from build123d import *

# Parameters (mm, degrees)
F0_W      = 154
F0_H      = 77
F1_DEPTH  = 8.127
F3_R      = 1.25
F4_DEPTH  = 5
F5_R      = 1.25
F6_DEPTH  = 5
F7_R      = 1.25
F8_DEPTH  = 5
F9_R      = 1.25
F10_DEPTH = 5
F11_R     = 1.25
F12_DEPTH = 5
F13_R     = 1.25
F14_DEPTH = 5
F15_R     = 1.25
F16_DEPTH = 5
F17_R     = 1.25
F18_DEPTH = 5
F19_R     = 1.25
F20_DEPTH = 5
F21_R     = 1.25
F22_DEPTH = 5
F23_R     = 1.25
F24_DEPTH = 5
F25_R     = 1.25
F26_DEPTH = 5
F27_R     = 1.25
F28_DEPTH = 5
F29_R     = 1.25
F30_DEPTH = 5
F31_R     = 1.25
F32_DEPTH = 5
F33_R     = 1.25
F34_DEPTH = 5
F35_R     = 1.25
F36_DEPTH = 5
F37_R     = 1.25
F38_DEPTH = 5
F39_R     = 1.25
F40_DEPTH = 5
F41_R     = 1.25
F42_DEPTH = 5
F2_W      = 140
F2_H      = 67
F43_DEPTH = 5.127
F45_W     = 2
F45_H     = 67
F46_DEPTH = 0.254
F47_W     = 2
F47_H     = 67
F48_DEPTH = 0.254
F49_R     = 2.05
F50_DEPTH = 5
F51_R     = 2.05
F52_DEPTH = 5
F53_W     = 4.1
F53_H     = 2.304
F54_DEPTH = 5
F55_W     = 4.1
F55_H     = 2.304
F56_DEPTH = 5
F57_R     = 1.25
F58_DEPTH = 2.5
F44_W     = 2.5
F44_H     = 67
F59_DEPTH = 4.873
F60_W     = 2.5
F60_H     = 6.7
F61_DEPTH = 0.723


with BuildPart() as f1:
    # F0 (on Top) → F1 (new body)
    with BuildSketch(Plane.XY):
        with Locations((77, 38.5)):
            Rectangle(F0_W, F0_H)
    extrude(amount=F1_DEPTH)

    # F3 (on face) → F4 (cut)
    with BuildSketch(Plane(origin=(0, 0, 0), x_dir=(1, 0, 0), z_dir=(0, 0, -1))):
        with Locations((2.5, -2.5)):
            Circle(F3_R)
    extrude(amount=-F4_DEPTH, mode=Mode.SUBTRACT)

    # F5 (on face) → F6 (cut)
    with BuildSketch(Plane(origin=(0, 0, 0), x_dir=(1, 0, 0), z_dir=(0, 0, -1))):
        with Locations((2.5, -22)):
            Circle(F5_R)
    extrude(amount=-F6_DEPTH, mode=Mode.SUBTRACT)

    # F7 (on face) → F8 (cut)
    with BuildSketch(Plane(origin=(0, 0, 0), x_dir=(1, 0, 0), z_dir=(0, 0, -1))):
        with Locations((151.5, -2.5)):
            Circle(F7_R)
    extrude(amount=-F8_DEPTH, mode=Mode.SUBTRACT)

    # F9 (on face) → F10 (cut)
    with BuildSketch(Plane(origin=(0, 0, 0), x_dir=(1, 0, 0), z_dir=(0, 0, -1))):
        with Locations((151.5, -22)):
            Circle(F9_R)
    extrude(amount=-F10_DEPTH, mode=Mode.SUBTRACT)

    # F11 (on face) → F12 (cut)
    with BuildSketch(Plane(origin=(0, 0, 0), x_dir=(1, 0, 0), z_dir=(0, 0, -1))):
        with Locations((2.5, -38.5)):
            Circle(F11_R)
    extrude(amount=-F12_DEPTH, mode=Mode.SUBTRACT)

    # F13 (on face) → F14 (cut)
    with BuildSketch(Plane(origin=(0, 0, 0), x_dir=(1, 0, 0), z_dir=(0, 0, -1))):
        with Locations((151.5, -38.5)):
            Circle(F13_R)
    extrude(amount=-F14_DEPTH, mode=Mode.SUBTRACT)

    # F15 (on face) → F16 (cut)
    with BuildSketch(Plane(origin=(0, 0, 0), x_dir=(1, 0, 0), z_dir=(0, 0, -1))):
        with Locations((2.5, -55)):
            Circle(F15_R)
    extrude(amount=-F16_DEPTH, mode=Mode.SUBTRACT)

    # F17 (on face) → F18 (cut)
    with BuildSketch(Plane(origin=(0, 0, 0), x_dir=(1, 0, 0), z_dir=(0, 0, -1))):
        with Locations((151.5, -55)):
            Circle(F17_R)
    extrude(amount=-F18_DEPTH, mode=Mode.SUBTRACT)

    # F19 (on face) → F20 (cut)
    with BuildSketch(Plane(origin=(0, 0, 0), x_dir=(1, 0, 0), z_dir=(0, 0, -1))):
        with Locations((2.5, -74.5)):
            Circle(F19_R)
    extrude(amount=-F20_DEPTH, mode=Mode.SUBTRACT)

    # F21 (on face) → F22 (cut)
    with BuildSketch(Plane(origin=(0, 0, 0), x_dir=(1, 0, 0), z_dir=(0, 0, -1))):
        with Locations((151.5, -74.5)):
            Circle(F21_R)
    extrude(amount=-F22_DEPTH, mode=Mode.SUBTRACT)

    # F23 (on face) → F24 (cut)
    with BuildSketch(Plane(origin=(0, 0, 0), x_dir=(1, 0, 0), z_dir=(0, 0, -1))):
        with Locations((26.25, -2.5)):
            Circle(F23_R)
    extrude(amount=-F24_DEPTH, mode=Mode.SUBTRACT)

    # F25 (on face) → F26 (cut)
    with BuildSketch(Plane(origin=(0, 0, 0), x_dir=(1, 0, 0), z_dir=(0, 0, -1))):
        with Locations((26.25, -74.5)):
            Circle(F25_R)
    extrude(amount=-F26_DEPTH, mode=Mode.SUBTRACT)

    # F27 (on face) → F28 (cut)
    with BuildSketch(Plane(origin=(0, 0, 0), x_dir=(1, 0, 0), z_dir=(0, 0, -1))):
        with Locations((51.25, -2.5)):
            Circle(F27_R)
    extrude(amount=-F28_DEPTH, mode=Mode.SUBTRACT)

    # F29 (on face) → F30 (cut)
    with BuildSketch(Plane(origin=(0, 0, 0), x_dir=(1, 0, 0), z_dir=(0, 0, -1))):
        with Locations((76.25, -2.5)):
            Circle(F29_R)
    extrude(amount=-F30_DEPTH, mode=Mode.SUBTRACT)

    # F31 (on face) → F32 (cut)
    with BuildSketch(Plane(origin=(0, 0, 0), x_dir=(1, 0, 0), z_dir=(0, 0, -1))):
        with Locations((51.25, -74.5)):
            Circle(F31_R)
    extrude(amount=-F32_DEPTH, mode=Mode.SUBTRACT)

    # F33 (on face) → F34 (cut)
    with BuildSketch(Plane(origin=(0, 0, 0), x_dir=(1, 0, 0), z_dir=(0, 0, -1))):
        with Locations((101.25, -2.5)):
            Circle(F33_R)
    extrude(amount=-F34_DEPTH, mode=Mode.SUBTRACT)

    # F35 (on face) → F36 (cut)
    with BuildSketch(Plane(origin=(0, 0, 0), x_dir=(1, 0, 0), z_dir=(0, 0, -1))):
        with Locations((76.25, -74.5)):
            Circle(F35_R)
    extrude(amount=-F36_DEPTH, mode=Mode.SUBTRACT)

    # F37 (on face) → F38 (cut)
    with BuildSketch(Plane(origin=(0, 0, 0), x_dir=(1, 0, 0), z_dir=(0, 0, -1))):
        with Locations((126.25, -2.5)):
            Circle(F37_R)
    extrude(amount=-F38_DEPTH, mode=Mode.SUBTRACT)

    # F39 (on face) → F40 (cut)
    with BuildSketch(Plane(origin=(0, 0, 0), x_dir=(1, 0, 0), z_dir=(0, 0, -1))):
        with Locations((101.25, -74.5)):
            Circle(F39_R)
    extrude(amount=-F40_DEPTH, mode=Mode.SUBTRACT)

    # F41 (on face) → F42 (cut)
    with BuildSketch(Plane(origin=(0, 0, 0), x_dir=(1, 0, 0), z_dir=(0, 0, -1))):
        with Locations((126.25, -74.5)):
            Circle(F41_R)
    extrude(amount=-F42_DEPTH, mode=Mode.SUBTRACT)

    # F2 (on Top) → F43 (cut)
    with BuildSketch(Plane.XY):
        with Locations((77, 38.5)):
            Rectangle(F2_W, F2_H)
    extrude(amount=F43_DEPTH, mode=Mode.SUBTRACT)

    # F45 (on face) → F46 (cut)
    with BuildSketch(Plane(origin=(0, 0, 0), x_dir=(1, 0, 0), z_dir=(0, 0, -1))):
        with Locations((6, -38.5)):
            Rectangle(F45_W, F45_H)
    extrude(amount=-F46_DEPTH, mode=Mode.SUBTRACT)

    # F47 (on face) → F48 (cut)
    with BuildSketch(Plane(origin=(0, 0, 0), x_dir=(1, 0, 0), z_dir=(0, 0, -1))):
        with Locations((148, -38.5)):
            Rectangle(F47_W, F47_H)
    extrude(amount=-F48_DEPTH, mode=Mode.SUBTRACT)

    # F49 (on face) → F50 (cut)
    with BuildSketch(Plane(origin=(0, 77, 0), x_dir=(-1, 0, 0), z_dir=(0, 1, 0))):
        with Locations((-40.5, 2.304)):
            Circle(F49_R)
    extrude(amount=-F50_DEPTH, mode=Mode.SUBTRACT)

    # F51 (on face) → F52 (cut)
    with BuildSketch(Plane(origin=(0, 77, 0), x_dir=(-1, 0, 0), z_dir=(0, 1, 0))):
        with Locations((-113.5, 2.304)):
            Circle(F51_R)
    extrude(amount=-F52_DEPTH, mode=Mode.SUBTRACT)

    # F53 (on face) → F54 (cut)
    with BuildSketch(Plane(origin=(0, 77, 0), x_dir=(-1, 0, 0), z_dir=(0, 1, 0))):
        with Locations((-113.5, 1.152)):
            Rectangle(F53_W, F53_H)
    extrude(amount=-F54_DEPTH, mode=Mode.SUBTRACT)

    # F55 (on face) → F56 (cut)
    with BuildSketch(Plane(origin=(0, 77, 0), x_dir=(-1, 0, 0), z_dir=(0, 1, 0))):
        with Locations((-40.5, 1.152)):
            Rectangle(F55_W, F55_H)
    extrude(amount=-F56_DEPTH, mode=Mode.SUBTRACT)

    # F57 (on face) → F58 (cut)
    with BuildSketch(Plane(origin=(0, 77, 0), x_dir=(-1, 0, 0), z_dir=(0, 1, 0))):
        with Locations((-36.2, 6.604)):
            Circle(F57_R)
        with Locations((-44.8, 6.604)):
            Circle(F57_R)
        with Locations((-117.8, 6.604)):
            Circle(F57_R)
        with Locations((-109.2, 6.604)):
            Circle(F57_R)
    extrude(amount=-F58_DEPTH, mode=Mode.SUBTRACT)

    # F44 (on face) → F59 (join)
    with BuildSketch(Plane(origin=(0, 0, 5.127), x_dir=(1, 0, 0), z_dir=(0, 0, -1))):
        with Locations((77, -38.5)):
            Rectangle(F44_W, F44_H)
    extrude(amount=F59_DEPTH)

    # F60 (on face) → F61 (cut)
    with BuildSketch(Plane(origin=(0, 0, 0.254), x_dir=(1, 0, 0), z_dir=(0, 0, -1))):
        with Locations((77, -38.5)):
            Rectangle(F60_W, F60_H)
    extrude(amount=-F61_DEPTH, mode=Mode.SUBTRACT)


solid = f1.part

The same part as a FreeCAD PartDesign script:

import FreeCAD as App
import Part
import Sketcher

V = App.Vector

doc = App.newDocument("Part")
body = doc.addObject("PartDesign::Body", "Body")

sketch1 = body.newObject("Sketcher::SketchObject", "Sketch")
sketch1.AttachmentSupport = (doc.getObject("XY_Plane"), [""])
sketch1.MapMode = "FlatFace"
sketch1.addGeometry([
    Part.LineSegment(V(0, 77, 0), V(0, 0, 0)),
    Part.LineSegment(V(0, 0, 0), V(154, 0, 0)),
    Part.LineSegment(V(154, 0, 0), V(154, 77, 0)),
    Part.LineSegment(V(154, 77, 0), V(0, 77, 0)),
], False)
sketch1.addConstraint([
    Sketcher.Constraint("Coincident", 0, 2, 1, 1),
    Sketcher.Constraint("Coincident", 1, 2, 2, 1),
    Sketcher.Constraint("Coincident", 2, 2, 3, 1),
    Sketcher.Constraint("Coincident", 3, 2, 0, 1),
    Sketcher.Constraint("Vertical", 0),
    Sketcher.Constraint("Horizontal", 1),
    Sketcher.Constraint("Vertical", 2),
    Sketcher.Constraint("Horizontal", 3),
    Sketcher.Constraint("Coincident", 0, 2, -1, 1),
    Sketcher.Constraint("DistanceX", 1, 1, 1, 2, 154.0),
    Sketcher.Constraint("DistanceY", 0, 2, 0, 1, 77.0),
])
pad1 = body.newObject("PartDesign::Pad", "Pad")
pad1.Profile = sketch1
pad1.Length = 8.127

sketch2 = body.newObject("Sketcher::SketchObject", "Sketch001")
sketch2.AttachmentSupport = (doc.getObject("XY_Plane"), [""])
sketch2.MapMode = "FlatFace"
sketch2.addGeometry(Part.Circle(V(2.5, 2.5, 0), V(0, 0, 1), 1.2), False)
sketch2.addConstraint([
    Sketcher.Constraint("Diameter", 0, 2.5),
    Sketcher.Constraint("DistanceX", -1, 1, 0, 3, 2.5),
    Sketcher.Constraint("DistanceY", -1, 1, 0, 3, 2.5),
])
pocket1 = body.newObject("PartDesign::Pocket", "Pocket")
pocket1.Profile = sketch2
pocket1.Length = 5
pocket1.Reversed = True

sketch3 = body.newObject("Sketcher::SketchObject", "Sketch002")
sketch3.AttachmentSupport = (doc.getObject("XY_Plane"), [""])
sketch3.MapMode = "FlatFace"
sketch3.addGeometry(Part.Circle(V(2.5, 22, 0), V(0, 0, 1), 1.2), False)
sketch3.addConstraint([
    Sketcher.Constraint("Diameter", 0, 2.5),
    Sketcher.Constraint("DistanceY", -1, 1, 0, 3, 22.0),
    Sketcher.Constraint("DistanceX", -1, 1, 0, 3, 2.5),
])
pocket2 = body.newObject("PartDesign::Pocket", "Pocket001")
pocket2.Profile = sketch3
pocket2.Length = 5
pocket2.Reversed = True

sketch4 = body.newObject("Sketcher::SketchObject", "Sketch003")
sketch4.AttachmentSupport = (doc.getObject("XY_Plane"), [""])
sketch4.MapMode = "FlatFace"
sketch4.addGeometry(Part.Circle(V(151.5, 2.5, 0), V(0, 0, 1), 1.2), False)
sketch4.addConstraint([
    Sketcher.Constraint("Diameter", 0, 2.5),
    Sketcher.Constraint("DistanceX", -1, 1, 0, 3, 151.5),
    Sketcher.Constraint("DistanceY", -1, 1, 0, 3, 2.5),
])
pocket3 = body.newObject("PartDesign::Pocket", "Pocket002")
pocket3.Profile = sketch4
pocket3.Length = 5
pocket3.Reversed = True

sketch5 = body.newObject("Sketcher::SketchObject", "Sketch004")
sketch5.AttachmentSupport = (doc.getObject("XY_Plane"), [""])
sketch5.MapMode = "FlatFace"
sketch5.addGeometry(Part.Circle(V(151.5, 22, 0), V(0, 0, 1), 1.2), False)
sketch5.addConstraint([
    Sketcher.Constraint("Diameter", 0, 2.5),
    Sketcher.Constraint("DistanceY", -1, 1, 0, 3, 22.0),
    Sketcher.Constraint("DistanceX", -1, 1, 0, 3, 151.5),
])
pocket4 = body.newObject("PartDesign::Pocket", "Pocket003")
pocket4.Profile = sketch5
pocket4.Length = 5
pocket4.Reversed = True

sketch6 = body.newObject("Sketcher::SketchObject", "Sketch005")
sketch6.AttachmentSupport = (doc.getObject("XY_Plane"), [""])
sketch6.MapMode = "FlatFace"
sketch6.addGeometry(Part.Circle(V(2.5, 38.5, 0), V(0, 0, 1), 1.2), False)
sketch6.addConstraint([
    Sketcher.Constraint("Diameter", 0, 2.5),
    Sketcher.Constraint("DistanceX", -1, 1, 0, 3, 2.5),
    Sketcher.Constraint("DistanceY", -1, 1, 0, 3, 38.5),
])
pocket5 = body.newObject("PartDesign::Pocket", "Pocket004")
pocket5.Profile = sketch6
pocket5.Length = 5
pocket5.Reversed = True

sketch7 = body.newObject("Sketcher::SketchObject", "Sketch006")
sketch7.AttachmentSupport = (doc.getObject("XY_Plane"), [""])
sketch7.MapMode = "FlatFace"
sketch7.addGeometry(Part.Circle(V(151.5, 38.5, 0), V(0, 0, 1), 1.2), False)
sketch7.addConstraint([
    Sketcher.Constraint("Diameter", 0, 2.5),
    Sketcher.Constraint("DistanceX", -1, 1, 0, 3, 151.5),
    Sketcher.Constraint("DistanceY", -1, 1, 0, 3, 38.5),
])
pocket6 = body.newObject("PartDesign::Pocket", "Pocket005")
pocket6.Profile = sketch7
pocket6.Length = 5
pocket6.Reversed = True

sketch8 = body.newObject("Sketcher::SketchObject", "Sketch007")
sketch8.AttachmentSupport = (doc.getObject("XY_Plane"), [""])
sketch8.MapMode = "FlatFace"
sketch8.addGeometry(Part.Circle(V(2.5, 55, 0), V(0, 0, 1), 1.2), False)
sketch8.addConstraint([
    Sketcher.Constraint("Diameter", 0, 2.5),
    Sketcher.Constraint("DistanceY", -1, 1, 0, 3, 55.0),
    Sketcher.Constraint("DistanceX", -1, 1, 0, 3, 2.5),
])
pocket7 = body.newObject("PartDesign::Pocket", "Pocket006")
pocket7.Profile = sketch8
pocket7.Length = 5
pocket7.Reversed = True

sketch9 = body.newObject("Sketcher::SketchObject", "Sketch008")
sketch9.AttachmentSupport = (doc.getObject("XY_Plane"), [""])
sketch9.MapMode = "FlatFace"
sketch9.addGeometry(Part.Circle(V(151.5, 55, 0), V(0, 0, 1), 1.2), False)
sketch9.addConstraint([
    Sketcher.Constraint("Diameter", 0, 2.5),
    Sketcher.Constraint("DistanceY", -1, 1, 0, 3, 55.0),
    Sketcher.Constraint("DistanceX", -1, 1, 0, 3, 151.5),
])
pocket8 = body.newObject("PartDesign::Pocket", "Pocket007")
pocket8.Profile = sketch9
pocket8.Length = 5
pocket8.Reversed = True

sketch10 = body.newObject("Sketcher::SketchObject", "Sketch009")
sketch10.AttachmentSupport = (doc.getObject("XY_Plane"), [""])
sketch10.MapMode = "FlatFace"
sketch10.addGeometry(Part.Circle(V(2.5, 74.5, 0), V(0, 0, 1), 1.2), False)
sketch10.addConstraint([
    Sketcher.Constraint("Diameter", 0, 2.5),
    Sketcher.Constraint("DistanceX", -1, 1, 0, 3, 2.5),
    Sketcher.Constraint("DistanceY", -1, 1, 0, 3, 74.5),
])
pocket9 = body.newObject("PartDesign::Pocket", "Pocket008")
pocket9.Profile = sketch10
pocket9.Length = 5
pocket9.Reversed = True

sketch11 = body.newObject("Sketcher::SketchObject", "Sketch010")
sketch11.AttachmentSupport = (doc.getObject("XY_Plane"), [""])
sketch11.MapMode = "FlatFace"
sketch11.addGeometry(Part.Circle(V(151.5, 74.5, 0), V(0, 0, 1), 1.2), False)
sketch11.addConstraint([
    Sketcher.Constraint("Diameter", 0, 2.5),
    Sketcher.Constraint("DistanceX", -1, 1, 0, 3, 151.5),
    Sketcher.Constraint("DistanceY", -1, 1, 0, 3, 74.5),
])
pocket10 = body.newObject("PartDesign::Pocket", "Pocket009")
pocket10.Profile = sketch11
pocket10.Length = 5
pocket10.Reversed = True

sketch12 = body.newObject("Sketcher::SketchObject", "Sketch011")
sketch12.AttachmentSupport = (doc.getObject("XY_Plane"), [""])
sketch12.MapMode = "FlatFace"
sketch12.addGeometry(Part.Circle(V(26.2, 2.5, 0), V(0, 0, 1), 1.2), False)
sketch12.addConstraint([
    Sketcher.Constraint("Diameter", 0, 2.5),
    Sketcher.Constraint("DistanceY", -1, 1, 0, 3, 2.5),
    Sketcher.Constraint("DistanceX", -1, 1, 0, 3, 26.25),
])
pocket11 = body.newObject("PartDesign::Pocket", "Pocket010")
pocket11.Profile = sketch12
pocket11.Length = 5
pocket11.Reversed = True

sketch13 = body.newObject("Sketcher::SketchObject", "Sketch012")
sketch13.AttachmentSupport = (doc.getObject("XY_Plane"), [""])
sketch13.MapMode = "FlatFace"
sketch13.addGeometry(Part.Circle(V(26.2, 74.5, 0), V(0, 0, 1), 1.2), False)
sketch13.addConstraint([
    Sketcher.Constraint("Diameter", 0, 2.5),
    Sketcher.Constraint("DistanceY", -1, 1, 0, 3, 74.5),
    Sketcher.Constraint("DistanceX", -1, 1, 0, 3, 26.25),
])
pocket12 = body.newObject("PartDesign::Pocket", "Pocket011")
pocket12.Profile = sketch13
pocket12.Length = 5
pocket12.Reversed = True

sketch14 = body.newObject("Sketcher::SketchObject", "Sketch013")
sketch14.AttachmentSupport = (doc.getObject("XY_Plane"), [""])
sketch14.MapMode = "FlatFace"
sketch14.addGeometry(Part.Circle(V(51.2, 2.5, 0), V(0, 0, 1), 1.2), False)
sketch14.addConstraint([
    Sketcher.Constraint("Diameter", 0, 2.5),
    Sketcher.Constraint("DistanceY", -1, 1, 0, 3, 2.5),
    Sketcher.Constraint("DistanceX", -1, 1, 0, 3, 51.25),
])
pocket13 = body.newObject("PartDesign::Pocket", "Pocket012")
pocket13.Profile = sketch14
pocket13.Length = 5
pocket13.Reversed = True

sketch15 = body.newObject("Sketcher::SketchObject", "Sketch014")
sketch15.AttachmentSupport = (doc.getObject("XY_Plane"), [""])
sketch15.MapMode = "FlatFace"
sketch15.addGeometry(Part.Circle(V(76.2, 2.5, 0), V(0, 0, 1), 1.2), False)
sketch15.addConstraint([
    Sketcher.Constraint("Diameter", 0, 2.5),
    Sketcher.Constraint("DistanceY", -1, 1, 0, 3, 2.5),
    Sketcher.Constraint("DistanceX", -1, 1, 0, 3, 76.25),
])
pocket14 = body.newObject("PartDesign::Pocket", "Pocket013")
pocket14.Profile = sketch15
pocket14.Length = 5
pocket14.Reversed = True

sketch16 = body.newObject("Sketcher::SketchObject", "Sketch015")
sketch16.AttachmentSupport = (doc.getObject("XY_Plane"), [""])
sketch16.MapMode = "FlatFace"
sketch16.addGeometry(Part.Circle(V(51.2, 74.5, 0), V(0, 0, 1), 1.2), False)
sketch16.addConstraint([
    Sketcher.Constraint("Diameter", 0, 2.5),
    Sketcher.Constraint("DistanceY", -1, 1, 0, 3, 74.5),
    Sketcher.Constraint("DistanceX", -1, 1, 0, 3, 51.25),
])
pocket15 = body.newObject("PartDesign::Pocket", "Pocket014")
pocket15.Profile = sketch16
pocket15.Length = 5
pocket15.Reversed = True

sketch17 = body.newObject("Sketcher::SketchObject", "Sketch016")
sketch17.AttachmentSupport = (doc.getObject("XY_Plane"), [""])
sketch17.MapMode = "FlatFace"
sketch17.addGeometry(Part.Circle(V(101.2, 2.5, 0), V(0, 0, 1), 1.2), False)
sketch17.addConstraint([
    Sketcher.Constraint("Diameter", 0, 2.5),
    Sketcher.Constraint("DistanceY", -1, 1, 0, 3, 2.5),
    Sketcher.Constraint("DistanceX", -1, 1, 0, 3, 101.25),
])
pocket16 = body.newObject("PartDesign::Pocket", "Pocket015")
pocket16.Profile = sketch17
pocket16.Length = 5
pocket16.Reversed = True

sketch18 = body.newObject("Sketcher::SketchObject", "Sketch017")
sketch18.AttachmentSupport = (doc.getObject("XY_Plane"), [""])
sketch18.MapMode = "FlatFace"
sketch18.addGeometry(Part.Circle(V(76.2, 74.5, 0), V(0, 0, 1), 1.2), False)
sketch18.addConstraint([
    Sketcher.Constraint("Diameter", 0, 2.5),
    Sketcher.Constraint("DistanceY", -1, 1, 0, 3, 74.5),
    Sketcher.Constraint("DistanceX", -1, 1, 0, 3, 76.25),
])
pocket17 = body.newObject("PartDesign::Pocket", "Pocket016")
pocket17.Profile = sketch18
pocket17.Length = 5
pocket17.Reversed = True

sketch19 = body.newObject("Sketcher::SketchObject", "Sketch018")
sketch19.AttachmentSupport = (doc.getObject("XY_Plane"), [""])
sketch19.MapMode = "FlatFace"
sketch19.addGeometry(Part.Circle(V(126.2, 2.5, 0), V(0, 0, 1), 1.2), False)
sketch19.addConstraint([
    Sketcher.Constraint("Diameter", 0, 2.5),
    Sketcher.Constraint("DistanceY", -1, 1, 0, 3, 2.5),
    Sketcher.Constraint("DistanceX", -1, 1, 0, 3, 126.25),
])
pocket18 = body.newObject("PartDesign::Pocket", "Pocket017")
pocket18.Profile = sketch19
pocket18.Length = 5
pocket18.Reversed = True

sketch20 = body.newObject("Sketcher::SketchObject", "Sketch019")
sketch20.AttachmentSupport = (doc.getObject("XY_Plane"), [""])
sketch20.MapMode = "FlatFace"
sketch20.addGeometry(Part.Circle(V(101.2, 74.5, 0), V(0, 0, 1), 1.2), False)
sketch20.addConstraint([
    Sketcher.Constraint("Diameter", 0, 2.5),
    Sketcher.Constraint("DistanceY", -1, 1, 0, 3, 74.5),
    Sketcher.Constraint("DistanceX", -1, 1, 0, 3, 101.25),
])
pocket19 = body.newObject("PartDesign::Pocket", "Pocket018")
pocket19.Profile = sketch20
pocket19.Length = 5
pocket19.Reversed = True

sketch21 = body.newObject("Sketcher::SketchObject", "Sketch020")
sketch21.AttachmentSupport = (doc.getObject("XY_Plane"), [""])
sketch21.MapMode = "FlatFace"
sketch21.addGeometry(Part.Circle(V(126.2, 74.5, 0), V(0, 0, 1), 1.2), False)
sketch21.addConstraint([
    Sketcher.Constraint("Diameter", 0, 2.5),
    Sketcher.Constraint("DistanceY", -1, 1, 0, 3, 74.5),
    Sketcher.Constraint("DistanceX", -1, 1, 0, 3, 126.25),
])
pocket20 = body.newObject("PartDesign::Pocket", "Pocket019")
pocket20.Profile = sketch21
pocket20.Length = 5
pocket20.Reversed = True

sketch22 = body.newObject("Sketcher::SketchObject", "Sketch021")
sketch22.AttachmentSupport = (doc.getObject("XY_Plane"), [""])
sketch22.MapMode = "FlatFace"
sketch22.addGeometry([
    Part.LineSegment(V(7, 72, 0), V(7, 5, 0)),
    Part.LineSegment(V(7, 5, 0), V(147, 5, 0)),
    Part.LineSegment(V(147, 5, 0), V(147, 72, 0)),
    Part.LineSegment(V(147, 72, 0), V(7, 72, 0)),
], False)
sketch22.addConstraint([
    Sketcher.Constraint("Coincident", 0, 2, 1, 1),
    Sketcher.Constraint("Coincident", 1, 2, 2, 1),
    Sketcher.Constraint("Coincident", 2, 2, 3, 1),
    Sketcher.Constraint("Coincident", 3, 2, 0, 1),
    Sketcher.Constraint("Vertical", 0),
    Sketcher.Constraint("Horizontal", 1),
    Sketcher.Constraint("Vertical", 2),
    Sketcher.Constraint("Horizontal", 3),
    Sketcher.Constraint("DistanceX", 1, 1, 1, 2, 140.0),
    Sketcher.Constraint("DistanceY", 0, 2, 0, 1, 67.0),
    Sketcher.Constraint("DistanceX", -1, 1, 0, 2, 7.0),
    Sketcher.Constraint("DistanceY", -1, 1, 0, 2, 5.0),
])
pocket21 = body.newObject("PartDesign::Pocket", "Pocket020")
pocket21.Profile = sketch22
pocket21.Length = 5.127
pocket21.Reversed = True

sketch23 = body.newObject("Sketcher::SketchObject", "Sketch022")
sketch23.AttachmentSupport = (doc.getObject("XY_Plane"), [""])
sketch23.MapMode = "FlatFace"
sketch23.addGeometry([
    Part.LineSegment(V(5, 5, 0), V(5, 72, 0)),
    Part.LineSegment(V(5, 72, 0), V(7, 72, 0)),
    Part.LineSegment(V(7, 72, 0), V(7, 5, 0)),
    Part.LineSegment(V(7, 5, 0), V(5, 5, 0)),
], False)
sketch23.addConstraint([
    Sketcher.Constraint("Coincident", 0, 2, 1, 1),
    Sketcher.Constraint("Coincident", 1, 2, 2, 1),
    Sketcher.Constraint("Coincident", 2, 2, 3, 1),
    Sketcher.Constraint("Coincident", 3, 2, 0, 1),
    Sketcher.Constraint("Vertical", 0),
    Sketcher.Constraint("Horizontal", 1),
    Sketcher.Constraint("Vertical", 2),
    Sketcher.Constraint("Horizontal", 3),
    Sketcher.Constraint("DistanceX", 1, 1, 1, 2, 2.0),
    Sketcher.Constraint("DistanceY", 0, 1, 0, 2, 67.0),
    Sketcher.Constraint("DistanceX", -1, 1, 0, 2, 5.0),
    Sketcher.Constraint("DistanceY", -1, 1, 0, 2, 72.0),
])
pocket22 = body.newObject("PartDesign::Pocket", "Pocket021")
pocket22.Profile = sketch23
pocket22.Length = 0.254
pocket22.Reversed = True

sketch24 = body.newObject("Sketcher::SketchObject", "Sketch023")
sketch24.AttachmentSupport = (doc.getObject("XY_Plane"), [""])
sketch24.MapMode = "FlatFace"
sketch24.addGeometry([
    Part.LineSegment(V(147, 5, 0), V(147, 72, 0)),
    Part.LineSegment(V(147, 72, 0), V(149, 72, 0)),
    Part.LineSegment(V(149, 72, 0), V(149, 5, 0)),
    Part.LineSegment(V(149, 5, 0), V(147, 5, 0)),
], False)
sketch24.addConstraint([
    Sketcher.Constraint("Coincident", 0, 2, 1, 1),
    Sketcher.Constraint("Coincident", 1, 2, 2, 1),
    Sketcher.Constraint("Coincident", 2, 2, 3, 1),
    Sketcher.Constraint("Coincident", 3, 2, 0, 1),
    Sketcher.Constraint("Vertical", 0),
    Sketcher.Constraint("Horizontal", 1),
    Sketcher.Constraint("Vertical", 2),
    Sketcher.Constraint("Horizontal", 3),
    Sketcher.Constraint("DistanceX", 1, 1, 1, 2, 2.0),
    Sketcher.Constraint("DistanceY", 0, 1, 0, 2, 67.0),
    Sketcher.Constraint("DistanceX", -1, 1, 0, 2, 147.0),
    Sketcher.Constraint("DistanceY", -1, 1, 0, 2, 72.0),
])
pocket23 = body.newObject("PartDesign::Pocket", "Pocket022")
pocket23.Profile = sketch24
pocket23.Length = 0.254
pocket23.Reversed = True

sketch25 = body.newObject("Sketcher::SketchObject", "Sketch024")
sketch25.AttachmentSupport = (doc.getObject("XZ_Plane"), [""])
sketch25.MapMode = "FlatFace"
sketch25.AttachmentOffset = App.Placement(V(0, 0, -77), App.Rotation())
sketch25.addGeometry(Part.Circle(V(40.5, 2.3, 0), V(0, 0, 1), 2), False)
sketch25.addConstraint([
    Sketcher.Constraint("Diameter", 0, 4.1),
    Sketcher.Constraint("DistanceX", -1, 1, 0, 3, 40.5),
    Sketcher.Constraint("DistanceY", -1, 1, 0, 3, 2.304),
])
pocket24 = body.newObject("PartDesign::Pocket", "Pocket023")
pocket24.Profile = sketch25
pocket24.Length = 5
pocket24.Reversed = True

sketch26 = body.newObject("Sketcher::SketchObject", "Sketch025")
sketch26.AttachmentSupport = (doc.getObject("XZ_Plane"), [""])
sketch26.MapMode = "FlatFace"
sketch26.AttachmentOffset = App.Placement(V(0, 0, -77), App.Rotation())
sketch26.addGeometry(Part.Circle(V(113.5, 2.3, 0), V(0, 0, 1), 2), False)
sketch26.addConstraint([
    Sketcher.Constraint("Diameter", 0, 4.1),
    Sketcher.Constraint("DistanceX", -1, 1, 0, 3, 113.5),
    Sketcher.Constraint("DistanceY", -1, 1, 0, 3, 2.304),
])
pocket25 = body.newObject("PartDesign::Pocket", "Pocket024")
pocket25.Profile = sketch26
pocket25.Length = 5
pocket25.Reversed = True

sketch27 = body.newObject("Sketcher::SketchObject", "Sketch026")
sketch27.AttachmentSupport = (doc.getObject("XZ_Plane"), [""])
sketch27.MapMode = "FlatFace"
sketch27.AttachmentOffset = App.Placement(V(0, 0, -77), App.Rotation())
sketch27.addGeometry([
    Part.LineSegment(V(115.5, 2.3, 0), V(115.5, 0, 0)),
    Part.LineSegment(V(115.5, 0, 0), V(111.5, 0, 0)),
    Part.LineSegment(V(111.5, 0, 0), V(111.5, 2.3, 0)),
    Part.LineSegment(V(111.5, 2.3, 0), V(115.5, 2.3, 0)),
], False)
sketch27.addConstraint([
    Sketcher.Constraint("Coincident", 0, 2, 1, 1),
    Sketcher.Constraint("Coincident", 1, 2, 2, 1),
    Sketcher.Constraint("Coincident", 2, 2, 3, 1),
    Sketcher.Constraint("Coincident", 3, 2, 0, 1),
    Sketcher.Constraint("Vertical", 0),
    Sketcher.Constraint("Horizontal", 1),
    Sketcher.Constraint("Vertical", 2),
    Sketcher.Constraint("Horizontal", 3),
    Sketcher.Constraint("PointOnObject", 0, 2, -1),
    Sketcher.Constraint("DistanceX", 1, 2, 1, 1, 4.1),
    Sketcher.Constraint("DistanceY", 0, 2, 0, 1, 2.304),
    Sketcher.Constraint("DistanceX", -1, 1, 0, 2, 115.55),
])
pocket26 = body.newObject("PartDesign::Pocket", "Pocket025")
pocket26.Profile = sketch27
pocket26.Length = 5
pocket26.Reversed = True

sketch28 = body.newObject("Sketcher::SketchObject", "Sketch027")
sketch28.AttachmentSupport = (doc.getObject("XZ_Plane"), [""])
sketch28.MapMode = "FlatFace"
sketch28.AttachmentOffset = App.Placement(V(0, 0, -77), App.Rotation())
sketch28.addGeometry([
    Part.LineSegment(V(42.5, 2.3, 0), V(42.5, 0, 0)),
    Part.LineSegment(V(42.5, 0, 0), V(38.5, 0, 0)),
    Part.LineSegment(V(38.5, 0, 0), V(38.5, 2.3, 0)),
    Part.LineSegment(V(38.5, 2.3, 0), V(42.5, 2.3, 0)),
], False)
sketch28.addConstraint([
    Sketcher.Constraint("Coincident", 0, 2, 1, 1),
    Sketcher.Constraint("Coincident", 1, 2, 2, 1),
    Sketcher.Constraint("Coincident", 2, 2, 3, 1),
    Sketcher.Constraint("Coincident", 3, 2, 0, 1),
    Sketcher.Constraint("Vertical", 0),
    Sketcher.Constraint("Horizontal", 1),
    Sketcher.Constraint("Vertical", 2),
    Sketcher.Constraint("Horizontal", 3),
    Sketcher.Constraint("PointOnObject", 0, 2, -1),
    Sketcher.Constraint("DistanceX", 1, 2, 1, 1, 4.1),
    Sketcher.Constraint("DistanceY", 0, 2, 0, 1, 2.304),
    Sketcher.Constraint("DistanceX", -1, 1, 0, 2, 42.55),
])
pocket27 = body.newObject("PartDesign::Pocket", "Pocket026")
pocket27.Profile = sketch28
pocket27.Length = 5
pocket27.Reversed = True

sketch29 = body.newObject("Sketcher::SketchObject", "Sketch028")
sketch29.AttachmentSupport = (doc.getObject("XZ_Plane"), [""])
sketch29.MapMode = "FlatFace"
sketch29.AttachmentOffset = App.Placement(V(0, 0, -77), App.Rotation())
sketch29.addGeometry([
    Part.Circle(V(36.2, 6.6, 0), V(0, 0, 1), 1.2),
    Part.Circle(V(44.8, 6.6, 0), V(0, 0, 1), 1.2),
    Part.Circle(V(117.8, 6.6, 0), V(0, 0, 1), 1.2),
    Part.Circle(V(109.2, 6.6, 0), V(0, 0, 1), 1.2),
], False)
sketch29.addConstraint([
    Sketcher.Constraint("Equal", 0, 1),
    Sketcher.Constraint("Equal", 1, 2),
    Sketcher.Constraint("Equal", 2, 3),
    Sketcher.Constraint("Horizontal", 0, 3, 1, 3),
    Sketcher.Constraint("Horizontal", 1, 3, 2, 3),
    Sketcher.Constraint("Horizontal", 2, 3, 3, 3),
    Sketcher.Constraint("Diameter", 0, 2.5),
    Sketcher.Constraint("DistanceX", 1, 3, 2, 3, 73.0),
    Sketcher.Constraint("DistanceX", 0, 3, 3, 3, 73.0),
    Sketcher.Constraint("DistanceX", -1, 1, 0, 3, 36.2),
    Sketcher.Constraint("DistanceX", -1, 1, 1, 3, 44.8),
    Sketcher.Constraint("DistanceY", -1, 1, 0, 3, 6.604),
])
pocket28 = body.newObject("PartDesign::Pocket", "Pocket027")
pocket28.Profile = sketch29
pocket28.Length = 2.5
pocket28.Reversed = True

sketch30 = body.newObject("Sketcher::SketchObject", "Sketch029")
sketch30.AttachmentSupport = (doc.getObject("XY_Plane"), [""])
sketch30.MapMode = "FlatFace"
sketch30.AttachmentOffset = App.Placement(V(0, 0, 5.127), App.Rotation())
sketch30.addGeometry([
    Part.LineSegment(V(75.8, 5, 0), V(75.8, 72, 0)),
    Part.LineSegment(V(75.8, 72, 0), V(78.2, 72, 0)),
    Part.LineSegment(V(78.2, 72, 0), V(78.2, 5, 0)),
    Part.LineSegment(V(78.2, 5, 0), V(75.8, 5, 0)),
], False)
sketch30.addConstraint([
    Sketcher.Constraint("Coincident", 0, 2, 1, 1),
    Sketcher.Constraint("Coincident", 1, 2, 2, 1),
    Sketcher.Constraint("Coincident", 2, 2, 3, 1),
    Sketcher.Constraint("Coincident", 3, 2, 0, 1),
    Sketcher.Constraint("Vertical", 0),
    Sketcher.Constraint("Horizontal", 1),
    Sketcher.Constraint("Vertical", 2),
    Sketcher.Constraint("Horizontal", 3),
    Sketcher.Constraint("DistanceY", 0, 1, 0, 2, 67.0),
    Sketcher.Constraint("DistanceX", 1, 1, 1, 2, 2.5),
    Sketcher.Constraint("DistanceY", -1, 1, 0, 2, 72.0),
    Sketcher.Constraint("DistanceX", -1, 1, 0, 2, 75.75),
])
pad2 = body.newObject("PartDesign::Pad", "Pad001")
pad2.Profile = sketch30
pad2.Length = 4.873
pad2.Reversed = True

sketch31 = body.newObject("Sketcher::SketchObject", "Sketch030")
sketch31.AttachmentSupport = (doc.getObject("XY_Plane"), [""])
sketch31.MapMode = "FlatFace"
sketch31.AttachmentOffset = App.Placement(V(0, 0, 0.254), App.Rotation())
sketch31.addGeometry([
    Part.LineSegment(V(75.8, 35.1, 0), V(75.8, 41.9, 0)),
    Part.LineSegment(V(75.8, 41.9, 0), V(78.2, 41.9, 0)),
    Part.LineSegment(V(78.2, 41.9, 0), V(78.2, 35.1, 0)),
    Part.LineSegment(V(78.2, 35.1, 0), V(75.8, 35.1, 0)),
], False)
sketch31.addConstraint([
    Sketcher.Constraint("Coincident", 0, 2, 1, 1),
    Sketcher.Constraint("Coincident", 1, 2, 2, 1),
    Sketcher.Constraint("Coincident", 2, 2, 3, 1),
    Sketcher.Constraint("Coincident", 3, 2, 0, 1),
    Sketcher.Constraint("Vertical", 0),
    Sketcher.Constraint("Horizontal", 1),
    Sketcher.Constraint("Vertical", 2),
    Sketcher.Constraint("Horizontal", 3),
    Sketcher.Constraint("DistanceX", 1, 1, 1, 2, 2.5),
    Sketcher.Constraint("DistanceY", 0, 1, 0, 2, 6.7),
    Sketcher.Constraint("DistanceX", -1, 1, 0, 2, 75.75),
    Sketcher.Constraint("DistanceY", -1, 1, 0, 2, 41.85),
])
pocket29 = body.newObject("PartDesign::Pocket", "Pocket028")
pocket29.Profile = sketch31
pocket29.Length = 0.723
pocket29.Reversed = True

doc.recompute()
